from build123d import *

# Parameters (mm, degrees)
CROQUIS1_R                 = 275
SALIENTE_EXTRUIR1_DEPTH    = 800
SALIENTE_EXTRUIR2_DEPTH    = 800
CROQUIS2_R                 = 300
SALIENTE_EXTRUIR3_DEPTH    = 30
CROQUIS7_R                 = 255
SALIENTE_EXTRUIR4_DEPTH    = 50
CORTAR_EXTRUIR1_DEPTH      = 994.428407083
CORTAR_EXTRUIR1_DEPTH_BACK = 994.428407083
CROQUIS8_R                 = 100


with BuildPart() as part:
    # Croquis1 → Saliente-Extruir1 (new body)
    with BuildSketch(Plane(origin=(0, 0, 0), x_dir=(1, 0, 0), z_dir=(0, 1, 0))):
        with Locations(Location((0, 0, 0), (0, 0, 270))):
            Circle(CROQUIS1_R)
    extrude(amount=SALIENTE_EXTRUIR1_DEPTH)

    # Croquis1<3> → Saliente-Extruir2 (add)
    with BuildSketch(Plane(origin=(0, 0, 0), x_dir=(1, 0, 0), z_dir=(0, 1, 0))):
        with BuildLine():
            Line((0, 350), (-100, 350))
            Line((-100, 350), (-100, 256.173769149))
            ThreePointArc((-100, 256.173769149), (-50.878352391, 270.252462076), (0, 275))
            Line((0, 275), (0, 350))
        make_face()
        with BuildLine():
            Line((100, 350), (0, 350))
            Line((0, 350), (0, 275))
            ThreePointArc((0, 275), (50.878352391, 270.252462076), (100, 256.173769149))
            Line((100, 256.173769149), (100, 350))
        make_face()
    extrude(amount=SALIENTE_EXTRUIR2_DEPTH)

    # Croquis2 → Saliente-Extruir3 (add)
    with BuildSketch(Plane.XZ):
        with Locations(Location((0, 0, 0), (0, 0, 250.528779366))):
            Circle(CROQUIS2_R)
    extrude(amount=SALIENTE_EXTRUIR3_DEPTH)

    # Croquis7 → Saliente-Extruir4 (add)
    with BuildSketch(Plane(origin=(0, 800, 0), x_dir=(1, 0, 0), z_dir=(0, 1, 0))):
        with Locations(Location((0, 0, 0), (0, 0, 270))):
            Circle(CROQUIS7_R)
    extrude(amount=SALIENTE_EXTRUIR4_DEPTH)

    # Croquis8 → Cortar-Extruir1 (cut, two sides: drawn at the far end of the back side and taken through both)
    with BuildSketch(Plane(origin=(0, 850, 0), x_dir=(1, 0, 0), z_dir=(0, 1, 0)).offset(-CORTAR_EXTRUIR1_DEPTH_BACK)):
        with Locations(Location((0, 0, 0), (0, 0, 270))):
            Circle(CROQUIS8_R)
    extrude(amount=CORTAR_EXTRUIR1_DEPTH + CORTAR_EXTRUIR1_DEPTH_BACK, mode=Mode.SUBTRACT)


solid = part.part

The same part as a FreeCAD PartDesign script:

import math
import FreeCAD as App
import Part
import Sketcher

V = App.Vector
Q = App.Units.Quantity

doc = App.newDocument("Part")
body = doc.addObject("PartDesign::Body", "Body")

sketch1 = doc.addObject("Sketcher::SketchObject", "Sketch")
body.addObject(sketch1)
sketch1.AttachmentSupport = (doc.XZ_Plane, [""])
sketch1.MapMode = "FlatFace"
sketch1.addGeometry(Part.Circle(V(0, 0, 0), V(0, 0, 1), 275), False)
sketch1.addConstraint([
    Sketcher.Constraint("Coincident", 0, 3, -1, 1),
    Sketcher.Constraint("Diameter", 0, Q("550 mm")),
])
pad1 = doc.addObject("PartDesign::Pad", "Pad")
body.addObject(pad1)
pad1.Profile = sketch1
pad1.Length = 800
pad1.Reversed = True

sketch2 = doc.addObject("Sketcher::SketchObject", "Sketch001")
body.addObject(sketch2)
sketch2.AttachmentSupport = (doc.XZ_Plane, [""])
sketch2.MapMode = "FlatFace"
sketch2.addGeometry([
    Part.LineSegment(V(-100, -350, 0), V(-100, -256, 0)),
    Part.ArcOfCircle(Part.Circle(V(0, 0, 0), V(0, 0, 1), 275), math.radians(-111), math.radians(-90)),
    Part.ArcOfCircle(Part.Circle(V(0, 0, 0), V(0, 0, 1), 275), math.radians(-90), math.radians(-69)),
    Part.LineSegment(V(100, -256, 0), V(100, -350, 0)),
    Part.LineSegment(V(100, -350, 0), V(-100, -350, 0)),
], False)
sketch2.addConstraint([
    Sketcher.Constraint("Coincident", 0, 2, 1, 1),
    Sketcher.Constraint("Tangent", 1, 2, 2, 1),
    Sketcher.Constraint("Coincident", 2, 2, 3, 1),
    Sketcher.Constraint("Coincident", 3, 2, 4, 1),
    Sketcher.Constraint("Coincident", 4, 2, 0, 1),
    Sketcher.Constraint("Vertical", 0),
    Sketcher.Constraint("Vertical", 3),
    Sketcher.Constraint("Horizontal", 4),
    Sketcher.Constraint("Coincident", 1, 3, -1, 1),
    Sketcher.Constraint("Equal", 1, 2),
    Sketcher.Constraint("PointOnObject", 1, 2, -2),
    Sketcher.Constraint("Horizontal", 0, 2, 2, 2),
    Sketcher.Constraint("Radius", 1, Q("275 mm")),
    Sketcher.Constraint("DistanceX", 4, 2, 4, 1, Q("200 mm")),
    Sketcher.Constraint("DistanceY", 3, 2, -1, 1, Q("350 mm")),
])
pad2 = doc.addObject("PartDesign::Pad", "Pad001")
body.addObject(pad2)
pad2.Profile = sketch2
pad2.Length = 800
pad2.Reversed = True

sketch3 = doc.addObject("Sketcher::SketchObject", "Sketch002")
body.addObject(sketch3)
sketch3.AttachmentSupport = (doc.XZ_Plane, [""])
sketch3.MapMode = "FlatFace"
sketch3.addGeometry(Part.Circle(V(0, 0, 0), V(0, 0, 1), 300), False)
sketch3.addConstraint([
    Sketcher.Constraint("Coincident", 0, 3, -1, 1),
    Sketcher.Constraint("Diameter", 0, Q("600 mm")),
])
pad3 = doc.addObject("PartDesign::Pad", "Pad002")
body.addObject(pad3)
pad3.Profile = sketch3
pad3.Length = 30

sketch4 = doc.addObject("Sketcher::SketchObject", "Sketch003")
body.addObject(sketch4)
sketch4.AttachmentSupport = (doc.XZ_Plane, [""])
sketch4.MapMode = "FlatFace"
sketch4.AttachmentOffset = App.Placement(V(0, 0, -800), App.Rotation())
sketch4.addGeometry(Part.Circle(V(0, 0, 0), V(0, 0, 1), 255), False)
sketch4.addConstraint([
    Sketcher.Constraint("Coincident", 0, 3, -1, 1),
    Sketcher.Constraint("Diameter", 0, Q("510 mm")),
])
pad4 = doc.addObject("PartDesign::Pad", "Pad003")
body.addObject(pad4)
pad4.Profile = sketch4
pad4.Length = 50
pad4.Reversed = True

sketch5 = doc.addObject("Sketcher::SketchObject", "Sketch004")
body.addObject(sketch5)
sketch5.AttachmentSupport = (doc.XZ_Plane, [""])
sketch5.MapMode = "FlatFace"
sketch5.AttachmentOffset = App.Placement(V(0, 0, -850), App.Rotation())
sketch5.addGeometry(Part.Circle(V(0, 0, 0), V(0, 0, 1), 100), False)
sketch5.addConstraint([
    Sketcher.Constraint("Coincident", 0, 3, -1, 1),
    Sketcher.Constraint("Diameter", 0, Q("200 mm")),
])
pocket1 = doc.addObject("PartDesign::Pocket", "Pocket")
body.addObject(pocket1)
pocket1.Profile = sketch5
pocket1.Type = "ThroughAll"
pocket1.Midplane = True

doc.recompute()
